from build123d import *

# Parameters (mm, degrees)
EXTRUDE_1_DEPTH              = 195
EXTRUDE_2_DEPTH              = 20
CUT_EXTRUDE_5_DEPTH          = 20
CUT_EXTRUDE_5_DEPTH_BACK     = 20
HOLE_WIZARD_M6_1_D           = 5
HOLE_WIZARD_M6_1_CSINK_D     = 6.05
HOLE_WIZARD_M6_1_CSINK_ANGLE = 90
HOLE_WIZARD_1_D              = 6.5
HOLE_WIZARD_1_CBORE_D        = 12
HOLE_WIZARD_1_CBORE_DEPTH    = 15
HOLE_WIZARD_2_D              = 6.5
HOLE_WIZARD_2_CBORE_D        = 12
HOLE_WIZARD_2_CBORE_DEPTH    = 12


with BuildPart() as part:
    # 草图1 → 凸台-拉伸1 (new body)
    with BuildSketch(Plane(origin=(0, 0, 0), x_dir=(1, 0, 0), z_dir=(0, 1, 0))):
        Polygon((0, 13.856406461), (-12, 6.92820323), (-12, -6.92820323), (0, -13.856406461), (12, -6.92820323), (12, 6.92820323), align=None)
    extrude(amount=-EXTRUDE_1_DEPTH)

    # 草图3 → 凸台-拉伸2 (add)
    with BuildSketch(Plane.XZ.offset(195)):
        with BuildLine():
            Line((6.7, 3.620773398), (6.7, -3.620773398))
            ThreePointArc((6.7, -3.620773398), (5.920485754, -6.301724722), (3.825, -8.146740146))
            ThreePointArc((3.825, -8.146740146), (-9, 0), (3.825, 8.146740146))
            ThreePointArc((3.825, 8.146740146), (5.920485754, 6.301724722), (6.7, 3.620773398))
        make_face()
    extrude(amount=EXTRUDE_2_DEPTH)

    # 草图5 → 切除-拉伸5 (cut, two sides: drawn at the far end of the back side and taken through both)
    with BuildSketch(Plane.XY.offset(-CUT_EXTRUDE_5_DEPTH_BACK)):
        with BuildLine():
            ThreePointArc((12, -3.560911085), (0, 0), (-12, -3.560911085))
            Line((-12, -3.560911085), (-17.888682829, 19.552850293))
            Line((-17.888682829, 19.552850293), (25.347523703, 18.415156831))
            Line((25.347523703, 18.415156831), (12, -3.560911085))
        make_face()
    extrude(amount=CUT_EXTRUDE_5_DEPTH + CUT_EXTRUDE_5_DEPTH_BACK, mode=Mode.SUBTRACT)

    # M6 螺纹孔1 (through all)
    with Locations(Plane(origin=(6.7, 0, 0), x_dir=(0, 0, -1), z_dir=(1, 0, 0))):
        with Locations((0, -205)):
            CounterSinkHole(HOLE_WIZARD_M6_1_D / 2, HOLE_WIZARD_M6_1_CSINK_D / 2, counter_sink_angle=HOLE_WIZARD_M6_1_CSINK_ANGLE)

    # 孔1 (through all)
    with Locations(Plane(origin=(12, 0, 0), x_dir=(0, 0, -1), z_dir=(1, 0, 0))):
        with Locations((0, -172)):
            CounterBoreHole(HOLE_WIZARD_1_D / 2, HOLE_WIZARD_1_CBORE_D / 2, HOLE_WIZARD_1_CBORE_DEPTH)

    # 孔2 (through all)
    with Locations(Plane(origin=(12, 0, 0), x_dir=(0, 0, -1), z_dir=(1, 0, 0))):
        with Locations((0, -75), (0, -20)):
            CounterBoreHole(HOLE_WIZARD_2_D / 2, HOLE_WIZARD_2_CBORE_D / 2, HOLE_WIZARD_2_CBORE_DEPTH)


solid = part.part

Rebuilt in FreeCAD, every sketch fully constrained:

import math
import FreeCAD as App
import Part
import Sketcher
from FreeCAD import Vector
Q = App.Units.Quantity


def add_polygon(sketch, points):
    """Adds a closed chain of lines whose ends are joined by coincident constraints."""
    first, n = sketch.GeometryCount, len(points)
    for a, b in zip(points, points[1:] + points[:1]):
        sketch.addGeometry(Part.LineSegment(App.Vector(*a, 0), App.Vector(*b, 0)), False)
    for i in range(n):
        sketch.addConstraint(Sketcher.Constraint("Coincident", first + i, 2, first + (i + 1) % n, 1))

doc = App.newDocument("Part")
body = doc.addObject("PartDesign::Body", "Body")

sketch1 = body.newObject("Sketcher::SketchObject", "Sketch")
sketch1.AttachmentSupport = (doc.getObject("XZ_Plane"), [""])
sketch1.MapMode = "FlatFace"
add_polygon(sketch1, [(0, -14), (-12, -7), (-12, 7), (0, 14), (12, 7), (12, -7)])
sketch1.addConstraint([
    Sketcher.Constraint("Vertical", 1),
    Sketcher.Constraint("Vertical", 4),
    Sketcher.Constraint("Symmetric", 0, 2, 3, 2, -1, 1),
    Sketcher.Constraint("Symmetric", 2, 2, 5, 2, -1, 1),
    Sketcher.Constraint("PointOnObject", 2, 2, -2),
    Sketcher.Constraint("Parallel", 2, 5),
    Sketcher.Constraint("Horizontal", 1, 2, 3, 2),
    Sketcher.Constraint("Angle", 0, Q("150 deg")),
    Sketcher.Constraint("DistanceX", 0, 2, -1, 1, 12.0),
    Sketcher.Constraint("DistanceY", 1, 1, 1, 2, 13.856406),
])
pad1 = body.newObject("PartDesign::Pad", "Pad")
pad1.Profile = sketch1
pad1.Length = 195

sketch2 = body.newObject("Sketcher::SketchObject", "Sketch001")
sketch2.AttachmentSupport = (doc.getObject("XZ_Plane"), [""])
sketch2.MapMode = "FlatFace"
sketch2.AttachmentOffset = App.Placement(Vector(0, 0, 195), App.Rotation())
sketch2.addGeometry([
    Part.LineSegment(Vector(7, -4, 0), Vector(7, 4, 0)),
    Part.ArcOfCircle(Part.Circle(Vector(2, 4, 0), Vector(0, 0, 1), 5), math.radians(0), math.radians(65)),
    Part.ArcOfCircle(Part.Circle(Vector(0, 0, 0), Vector(0, 0, 1), 9), math.radians(65), math.radians(295)),
    Part.ArcOfCircle(Part.Circle(Vector(2, -4, 0), Vector(0, 0, 1), 5), math.radians(-65), math.radians(0)),
], False)
sketch2.addConstraint([
    Sketcher.Constraint("Tangent", 0, 2, 1, 1),
    Sketcher.Constraint("Tangent", 1, 2, 2, 1),
    Sketcher.Constraint("Tangent", 2, 2, 3, 1),
    Sketcher.Constraint("Tangent", 3, 2, 0, 1),
    Sketcher.Constraint("Vertical", 0),
    Sketcher.Constraint("Coincident", 2, 3, -1, 1),
    Sketcher.Constraint("Equal", 1, 3),
    Sketcher.Constraint("Radius", 1, 5.0),
    Sketcher.Constraint("Radius", 2, 9.0),
    Sketcher.Constraint("DistanceX", -1, 1, 1, 3, 1.7),
])
pad2 = body.newObject("PartDesign::Pad", "Pad001")
pad2.Profile = sketch2
pad2.Length = 20

sketch3 = body.newObject("Sketcher::SketchObject", "Sketch002")
sketch3.AttachmentSupport = (doc.getObject("XY_Plane"), [""])
sketch3.MapMode = "FlatFace"
sketch3.addGeometry([
    Part.ArcOfCircle(Part.Circle(Vector(0, -22, 0), Vector(0, 0, 1), 22), math.radians(57), math.radians(123)),
    Part.LineSegment(Vector(12, -4, 0), Vector(25, 18, 0)),
    Part.LineSegment(Vector(25, 18, 0), Vector(-18, 20, 0)),
    Part.LineSegment(Vector(-18, 20, 0), Vector(-12, -4, 0)),
], False)
sketch3.addConstraint([
    Sketcher.Constraint("Coincident", 0, 1, 1, 1),
    Sketcher.Constraint("Coincident", 1, 2, 2, 1),
    Sketcher.Constraint("Coincident", 2, 2, 3, 1),
    Sketcher.Constraint("Coincident", 3, 2, 0, 2),
    Sketcher.Constraint("Symmetric", 0, 1, 3, 2, -2),
    Sketcher.Constraint("Radius", 0, 22.0),
    Sketcher.Constraint("DistanceY", 0, 3, -1, 1, 22.0),
    Sketcher.Constraint("DistanceX", -1, 1, 0, 1, 12.0),
    Sketcher.Constraint("Distance", 1, 25.711942),
    Sketcher.Constraint("DistanceY", -1, 1, 2, 2, 19.55285),
    Sketcher.Constraint("Distance", 2, 43.251172),
    Sketcher.Constraint("Distance", 3, 23.852097),
])
pocket1 = body.newObject("PartDesign::Pocket", "Pocket")
pocket1.Profile = sketch3
pocket1.Type = "ThroughAll"
pocket1.Midplane = True

sketch4 = body.newObject("Sketcher::SketchObject", "Sketch003")
sketch4.AttachmentSupport = (doc.getObject("YZ_Plane"), [""])
sketch4.MapMode = "FlatFace"
sketch4.AttachmentOffset = App.Placement(Vector(0, 0, 6.7), App.Rotation())
sketch4.addGeometry(Part.Circle(Vector(-205, 0, 0), Vector(0, 0, 1), 2.5), False)
sketch4.addConstraint([
    Sketcher.Constraint("PointOnObject", 0, 3, -1),
    Sketcher.Constraint("Diameter", 0, 5.0),
    Sketcher.Constraint("DistanceX", 0, 3, -1, 1, 205.0),
])
doc.recompute()
hole = body.newObject("PartDesign::Hole", "Hole")
hole.Profile = sketch4
hole.ThreadType = "None"
hole.Diameter = 5
hole.DepthType = "ThroughAll"
hole.HoleCutType = "Countersink"
hole.HoleCutDiameter = 6.05
hole.HoleCutCountersinkAngle = 90

sketch5 = body.newObject("Sketcher::SketchObject", "Sketch004")
sketch5.AttachmentSupport = (doc.getObject("YZ_Plane"), [""])
sketch5.MapMode = "FlatFace"
sketch5.AttachmentOffset = App.Placement(Vector(0, 0, 12), App.Rotation())
sketch5.addGeometry(Part.Circle(Vector(-172, 0, 0), Vector(0, 0, 1), 3.2), False)
sketch5.addConstraint([
    Sketcher.Constraint("PointOnObject", 0, 3, -1),
    Sketcher.Constraint("Diameter", 0, 6.5),
    Sketcher.Constraint("DistanceX", 0, 3, -1, 1, 172.0),
])
doc.recompute()
hole2 = body.newObject("PartDesign::Hole", "Hole001")
hole2.Profile = sketch5
hole2.ThreadType = "None"
hole2.Diameter = 6.5
hole2.DepthType = "ThroughAll"
hole2.HoleCutType = "Counterbore"
hole2.HoleCutDiameter = 12
hole2.HoleCutDepth = 15

sketch6 = body.newObject("Sketcher::SketchObject", "Sketch005")
sketch6.AttachmentSupport = (doc.getObject("YZ_Plane"), [""])
sketch6.MapMode = "FlatFace"
sketch6.AttachmentOffset = App.Placement(Vector(0, 0, 12), App.Rotation())
sketch6.addGeometry([
    Part.Circle(Vector(-75, 0, 0), Vector(0, 0, 1), 3.2),
    Part.Circle(Vector(-20, 0, 0), Vector(0, 0, 1), 3.2),
], False)
sketch6.addConstraint([
    Sketcher.Constraint("Equal", 0, 1),
    Sketcher.Constraint("PointOnObject", 0, 3, -1),
    Sketcher.Constraint("PointOnObject", 1, 3, -1),
    Sketcher.Constraint("Diameter", 0, 6.5),
    Sketcher.Constraint("DistanceX", 0, 3, -1, 1, 75.0),
    Sketcher.Constraint("DistanceX", 1, 3, -1, 1, 20.0),
])
doc.recompute()
hole3 = body.newObject("PartDesign::Hole", "Hole002")
hole3.Profile = sketch6
hole3.ThreadType = "None"
hole3.Diameter = 6.5
hole3.DepthType = "ThroughAll"
hole3.HoleCutType = "Counterbore"
hole3.HoleCutDiameter = 12
hole3.HoleCutDepth = 12

doc.recompute()
